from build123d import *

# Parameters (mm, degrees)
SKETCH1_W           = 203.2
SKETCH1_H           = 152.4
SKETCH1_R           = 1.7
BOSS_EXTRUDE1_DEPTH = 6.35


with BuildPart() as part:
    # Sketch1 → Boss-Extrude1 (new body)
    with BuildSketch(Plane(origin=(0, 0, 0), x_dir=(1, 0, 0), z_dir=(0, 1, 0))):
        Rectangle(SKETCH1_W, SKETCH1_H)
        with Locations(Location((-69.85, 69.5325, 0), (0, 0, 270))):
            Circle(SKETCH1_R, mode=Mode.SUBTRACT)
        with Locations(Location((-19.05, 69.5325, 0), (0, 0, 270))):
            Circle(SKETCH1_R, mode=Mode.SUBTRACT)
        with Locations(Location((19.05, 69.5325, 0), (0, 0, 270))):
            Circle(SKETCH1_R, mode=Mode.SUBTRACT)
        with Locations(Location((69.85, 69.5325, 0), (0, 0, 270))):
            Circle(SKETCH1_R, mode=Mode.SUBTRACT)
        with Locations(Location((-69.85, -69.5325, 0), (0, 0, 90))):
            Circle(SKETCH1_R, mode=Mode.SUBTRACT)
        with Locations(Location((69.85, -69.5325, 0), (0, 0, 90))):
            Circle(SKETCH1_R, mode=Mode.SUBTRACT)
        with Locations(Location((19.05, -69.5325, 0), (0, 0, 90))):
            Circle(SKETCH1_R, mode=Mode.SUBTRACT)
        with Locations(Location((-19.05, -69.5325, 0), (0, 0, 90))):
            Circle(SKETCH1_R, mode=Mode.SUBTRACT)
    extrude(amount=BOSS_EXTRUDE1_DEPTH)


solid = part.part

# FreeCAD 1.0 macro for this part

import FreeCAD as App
import Part
import Sketcher
from FreeCAD import Vector
Q = App.Units.Quantity

doc = App.newDocument("Part")
body = doc.addObject("PartDesign::Body", "Body")

# Sketch on XZ plane
sketch1 = doc.addObject("Sketcher::SketchObject", "Sketch")
body.addObject(sketch1)
sketch1.AttachmentSupport = (doc.XZ_Plane, [""])
sketch1.MapMode = "FlatFace"
sketch1.addGeometry(Part.LineSegment(Vector(-101.6, -76.2, 0), Vector(-101.6, 76.2, 0)), False)
sketch1.addGeometry(Part.LineSegment(Vector(-101.6, 76.2, 0), Vector(101.6, 76.2, 0)), False)
sketch1.addGeometry(Part.LineSegment(Vector(101.6, 76.2, 0), Vector(101.6, -76.2, 0)), False)
sketch1.addGeometry(Part.LineSegment(Vector(101.6, -76.2, 0), Vector(-101.6, -76.2, 0)), False)
sketch1.addGeometry(Part.Circle(Vector(-69.8, 69.5, 0), Vector(0, 0, 1), 1.7), False)
sketch1.addGeometry(Part.Circle(Vector(-19.1, 69.5, 0), Vector(0, 0, 1), 1.7), False)
sketch1.addGeometry(Part.Circle(Vector(19.1, 69.5, 0), Vector(0, 0, 1), 1.7), False)
sketch1.addGeometry(Part.Circle(Vector(69.8, 69.5, 0), Vector(0, 0, 1), 1.7), False)
sketch1.addGeometry(Part.Circle(Vector(-69.8, -69.5, 0), Vector(0, 0, 1), 1.7), False)
sketch1.addGeometry(Part.Circle(Vector(-19.1, -69.5, 0), Vector(0, 0, 1), 1.7), False)
sketch1.addGeometry(Part.Circle(Vector(19.1, -69.5, 0), Vector(0, 0, 1), 1.7), False)
sketch1.addGeometry(Part.Circle(Vector(69.8, -69.5, 0), Vector(0, 0, 1), 1.7), False)
sketch1.addConstraint(Sketcher.Constraint("Coincident", 0, 2, 1, 1))
sketch1.addConstraint(Sketcher.Constraint("Coincident", 1, 2, 2, 1))
sketch1.addConstraint(Sketcher.Constraint("Coincident", 2, 2, 3, 1))
sketch1.addConstraint(Sketcher.Constraint("Coincident", 3, 2, 0, 1))
sketch1.addConstraint(Sketcher.Constraint("Vertical", 0))
sketch1.addConstraint(Sketcher.Constraint("Horizontal", 1))
sketch1.addConstraint(Sketcher.Constraint("Vertical", 2))
sketch1.addConstraint(Sketcher.Constraint("Horizontal", 3))
sketch1.addConstraint(Sketcher.Constraint("Equal", 4, 5))
sketch1.addConstraint(Sketcher.Constraint("Equal", 5, 6))
sketch1.addConstraint(Sketcher.Constraint("Equal", 6, 7))
sketch1.addConstraint(Sketcher.Constraint("Equal", 7, 8))
sketch1.addConstraint(Sketcher.Constraint("Equal", 8, 9))
sketch1.addConstraint(Sketcher.Constraint("Equal", 9, 10))
sketch1.addConstraint(Sketcher.Constraint("Equal", 10, 11))
sketch1.addConstraint(Sketcher.Constraint("Symmetric", 7, 3, 8, 3, -1, 1))
sketch1.addConstraint(Sketcher.Constraint("Symmetric", 6, 3, 9, 3, -1, 1))
sketch1.addConstraint(Sketcher.Constraint("Symmetric", 5, 3, 10, 3, -1, 1))
sketch1.addConstraint(Sketcher.Constraint("Symmetric", 4, 3, 11, 3, -1, 1))
sketch1.addConstraint(Sketcher.Constraint("Symmetric", 0, 2, 2, 2, -1, 1))
sketch1.addConstraint(Sketcher.Constraint("Symmetric", 5, 3, 6, 3, -2))
sketch1.addConstraint(Sketcher.Constraint("Symmetric", 4, 3, 7, 3, -2))
sketch1.addConstraint(Sketcher.Constraint("Horizontal", 4, 3, 5, 3))
sketch1.addConstraint(Sketcher.Constraint("DistanceX", 1, 1, 1, 2, Q("8 in")))
sketch1.addConstraint(Sketcher.Constraint("DistanceY", 0, 1, 0, 2, Q("6 in")))
sketch1.addConstraint(Sketcher.Constraint("DistanceX", 4, 3, 5, 3, Q("2 in")))
sketch1.addConstraint(Sketcher.Constraint("DistanceX", 5, 3, 6, 3, Q("1.5 in")))
sketch1.addConstraint(Sketcher.Constraint("Diameter", 4, 3.4))
sketch1.addConstraint(Sketcher.Constraint("DistanceY", 8, 3, 4, 3, Q("5.475 in")))
pad1 = doc.addObject("PartDesign::Pad", "Pad")
body.addObject(pad1)
pad1.Profile = sketch1
pad1.Length = Q("0.25 in")
pad1.Reversed = True

doc.recompute()
